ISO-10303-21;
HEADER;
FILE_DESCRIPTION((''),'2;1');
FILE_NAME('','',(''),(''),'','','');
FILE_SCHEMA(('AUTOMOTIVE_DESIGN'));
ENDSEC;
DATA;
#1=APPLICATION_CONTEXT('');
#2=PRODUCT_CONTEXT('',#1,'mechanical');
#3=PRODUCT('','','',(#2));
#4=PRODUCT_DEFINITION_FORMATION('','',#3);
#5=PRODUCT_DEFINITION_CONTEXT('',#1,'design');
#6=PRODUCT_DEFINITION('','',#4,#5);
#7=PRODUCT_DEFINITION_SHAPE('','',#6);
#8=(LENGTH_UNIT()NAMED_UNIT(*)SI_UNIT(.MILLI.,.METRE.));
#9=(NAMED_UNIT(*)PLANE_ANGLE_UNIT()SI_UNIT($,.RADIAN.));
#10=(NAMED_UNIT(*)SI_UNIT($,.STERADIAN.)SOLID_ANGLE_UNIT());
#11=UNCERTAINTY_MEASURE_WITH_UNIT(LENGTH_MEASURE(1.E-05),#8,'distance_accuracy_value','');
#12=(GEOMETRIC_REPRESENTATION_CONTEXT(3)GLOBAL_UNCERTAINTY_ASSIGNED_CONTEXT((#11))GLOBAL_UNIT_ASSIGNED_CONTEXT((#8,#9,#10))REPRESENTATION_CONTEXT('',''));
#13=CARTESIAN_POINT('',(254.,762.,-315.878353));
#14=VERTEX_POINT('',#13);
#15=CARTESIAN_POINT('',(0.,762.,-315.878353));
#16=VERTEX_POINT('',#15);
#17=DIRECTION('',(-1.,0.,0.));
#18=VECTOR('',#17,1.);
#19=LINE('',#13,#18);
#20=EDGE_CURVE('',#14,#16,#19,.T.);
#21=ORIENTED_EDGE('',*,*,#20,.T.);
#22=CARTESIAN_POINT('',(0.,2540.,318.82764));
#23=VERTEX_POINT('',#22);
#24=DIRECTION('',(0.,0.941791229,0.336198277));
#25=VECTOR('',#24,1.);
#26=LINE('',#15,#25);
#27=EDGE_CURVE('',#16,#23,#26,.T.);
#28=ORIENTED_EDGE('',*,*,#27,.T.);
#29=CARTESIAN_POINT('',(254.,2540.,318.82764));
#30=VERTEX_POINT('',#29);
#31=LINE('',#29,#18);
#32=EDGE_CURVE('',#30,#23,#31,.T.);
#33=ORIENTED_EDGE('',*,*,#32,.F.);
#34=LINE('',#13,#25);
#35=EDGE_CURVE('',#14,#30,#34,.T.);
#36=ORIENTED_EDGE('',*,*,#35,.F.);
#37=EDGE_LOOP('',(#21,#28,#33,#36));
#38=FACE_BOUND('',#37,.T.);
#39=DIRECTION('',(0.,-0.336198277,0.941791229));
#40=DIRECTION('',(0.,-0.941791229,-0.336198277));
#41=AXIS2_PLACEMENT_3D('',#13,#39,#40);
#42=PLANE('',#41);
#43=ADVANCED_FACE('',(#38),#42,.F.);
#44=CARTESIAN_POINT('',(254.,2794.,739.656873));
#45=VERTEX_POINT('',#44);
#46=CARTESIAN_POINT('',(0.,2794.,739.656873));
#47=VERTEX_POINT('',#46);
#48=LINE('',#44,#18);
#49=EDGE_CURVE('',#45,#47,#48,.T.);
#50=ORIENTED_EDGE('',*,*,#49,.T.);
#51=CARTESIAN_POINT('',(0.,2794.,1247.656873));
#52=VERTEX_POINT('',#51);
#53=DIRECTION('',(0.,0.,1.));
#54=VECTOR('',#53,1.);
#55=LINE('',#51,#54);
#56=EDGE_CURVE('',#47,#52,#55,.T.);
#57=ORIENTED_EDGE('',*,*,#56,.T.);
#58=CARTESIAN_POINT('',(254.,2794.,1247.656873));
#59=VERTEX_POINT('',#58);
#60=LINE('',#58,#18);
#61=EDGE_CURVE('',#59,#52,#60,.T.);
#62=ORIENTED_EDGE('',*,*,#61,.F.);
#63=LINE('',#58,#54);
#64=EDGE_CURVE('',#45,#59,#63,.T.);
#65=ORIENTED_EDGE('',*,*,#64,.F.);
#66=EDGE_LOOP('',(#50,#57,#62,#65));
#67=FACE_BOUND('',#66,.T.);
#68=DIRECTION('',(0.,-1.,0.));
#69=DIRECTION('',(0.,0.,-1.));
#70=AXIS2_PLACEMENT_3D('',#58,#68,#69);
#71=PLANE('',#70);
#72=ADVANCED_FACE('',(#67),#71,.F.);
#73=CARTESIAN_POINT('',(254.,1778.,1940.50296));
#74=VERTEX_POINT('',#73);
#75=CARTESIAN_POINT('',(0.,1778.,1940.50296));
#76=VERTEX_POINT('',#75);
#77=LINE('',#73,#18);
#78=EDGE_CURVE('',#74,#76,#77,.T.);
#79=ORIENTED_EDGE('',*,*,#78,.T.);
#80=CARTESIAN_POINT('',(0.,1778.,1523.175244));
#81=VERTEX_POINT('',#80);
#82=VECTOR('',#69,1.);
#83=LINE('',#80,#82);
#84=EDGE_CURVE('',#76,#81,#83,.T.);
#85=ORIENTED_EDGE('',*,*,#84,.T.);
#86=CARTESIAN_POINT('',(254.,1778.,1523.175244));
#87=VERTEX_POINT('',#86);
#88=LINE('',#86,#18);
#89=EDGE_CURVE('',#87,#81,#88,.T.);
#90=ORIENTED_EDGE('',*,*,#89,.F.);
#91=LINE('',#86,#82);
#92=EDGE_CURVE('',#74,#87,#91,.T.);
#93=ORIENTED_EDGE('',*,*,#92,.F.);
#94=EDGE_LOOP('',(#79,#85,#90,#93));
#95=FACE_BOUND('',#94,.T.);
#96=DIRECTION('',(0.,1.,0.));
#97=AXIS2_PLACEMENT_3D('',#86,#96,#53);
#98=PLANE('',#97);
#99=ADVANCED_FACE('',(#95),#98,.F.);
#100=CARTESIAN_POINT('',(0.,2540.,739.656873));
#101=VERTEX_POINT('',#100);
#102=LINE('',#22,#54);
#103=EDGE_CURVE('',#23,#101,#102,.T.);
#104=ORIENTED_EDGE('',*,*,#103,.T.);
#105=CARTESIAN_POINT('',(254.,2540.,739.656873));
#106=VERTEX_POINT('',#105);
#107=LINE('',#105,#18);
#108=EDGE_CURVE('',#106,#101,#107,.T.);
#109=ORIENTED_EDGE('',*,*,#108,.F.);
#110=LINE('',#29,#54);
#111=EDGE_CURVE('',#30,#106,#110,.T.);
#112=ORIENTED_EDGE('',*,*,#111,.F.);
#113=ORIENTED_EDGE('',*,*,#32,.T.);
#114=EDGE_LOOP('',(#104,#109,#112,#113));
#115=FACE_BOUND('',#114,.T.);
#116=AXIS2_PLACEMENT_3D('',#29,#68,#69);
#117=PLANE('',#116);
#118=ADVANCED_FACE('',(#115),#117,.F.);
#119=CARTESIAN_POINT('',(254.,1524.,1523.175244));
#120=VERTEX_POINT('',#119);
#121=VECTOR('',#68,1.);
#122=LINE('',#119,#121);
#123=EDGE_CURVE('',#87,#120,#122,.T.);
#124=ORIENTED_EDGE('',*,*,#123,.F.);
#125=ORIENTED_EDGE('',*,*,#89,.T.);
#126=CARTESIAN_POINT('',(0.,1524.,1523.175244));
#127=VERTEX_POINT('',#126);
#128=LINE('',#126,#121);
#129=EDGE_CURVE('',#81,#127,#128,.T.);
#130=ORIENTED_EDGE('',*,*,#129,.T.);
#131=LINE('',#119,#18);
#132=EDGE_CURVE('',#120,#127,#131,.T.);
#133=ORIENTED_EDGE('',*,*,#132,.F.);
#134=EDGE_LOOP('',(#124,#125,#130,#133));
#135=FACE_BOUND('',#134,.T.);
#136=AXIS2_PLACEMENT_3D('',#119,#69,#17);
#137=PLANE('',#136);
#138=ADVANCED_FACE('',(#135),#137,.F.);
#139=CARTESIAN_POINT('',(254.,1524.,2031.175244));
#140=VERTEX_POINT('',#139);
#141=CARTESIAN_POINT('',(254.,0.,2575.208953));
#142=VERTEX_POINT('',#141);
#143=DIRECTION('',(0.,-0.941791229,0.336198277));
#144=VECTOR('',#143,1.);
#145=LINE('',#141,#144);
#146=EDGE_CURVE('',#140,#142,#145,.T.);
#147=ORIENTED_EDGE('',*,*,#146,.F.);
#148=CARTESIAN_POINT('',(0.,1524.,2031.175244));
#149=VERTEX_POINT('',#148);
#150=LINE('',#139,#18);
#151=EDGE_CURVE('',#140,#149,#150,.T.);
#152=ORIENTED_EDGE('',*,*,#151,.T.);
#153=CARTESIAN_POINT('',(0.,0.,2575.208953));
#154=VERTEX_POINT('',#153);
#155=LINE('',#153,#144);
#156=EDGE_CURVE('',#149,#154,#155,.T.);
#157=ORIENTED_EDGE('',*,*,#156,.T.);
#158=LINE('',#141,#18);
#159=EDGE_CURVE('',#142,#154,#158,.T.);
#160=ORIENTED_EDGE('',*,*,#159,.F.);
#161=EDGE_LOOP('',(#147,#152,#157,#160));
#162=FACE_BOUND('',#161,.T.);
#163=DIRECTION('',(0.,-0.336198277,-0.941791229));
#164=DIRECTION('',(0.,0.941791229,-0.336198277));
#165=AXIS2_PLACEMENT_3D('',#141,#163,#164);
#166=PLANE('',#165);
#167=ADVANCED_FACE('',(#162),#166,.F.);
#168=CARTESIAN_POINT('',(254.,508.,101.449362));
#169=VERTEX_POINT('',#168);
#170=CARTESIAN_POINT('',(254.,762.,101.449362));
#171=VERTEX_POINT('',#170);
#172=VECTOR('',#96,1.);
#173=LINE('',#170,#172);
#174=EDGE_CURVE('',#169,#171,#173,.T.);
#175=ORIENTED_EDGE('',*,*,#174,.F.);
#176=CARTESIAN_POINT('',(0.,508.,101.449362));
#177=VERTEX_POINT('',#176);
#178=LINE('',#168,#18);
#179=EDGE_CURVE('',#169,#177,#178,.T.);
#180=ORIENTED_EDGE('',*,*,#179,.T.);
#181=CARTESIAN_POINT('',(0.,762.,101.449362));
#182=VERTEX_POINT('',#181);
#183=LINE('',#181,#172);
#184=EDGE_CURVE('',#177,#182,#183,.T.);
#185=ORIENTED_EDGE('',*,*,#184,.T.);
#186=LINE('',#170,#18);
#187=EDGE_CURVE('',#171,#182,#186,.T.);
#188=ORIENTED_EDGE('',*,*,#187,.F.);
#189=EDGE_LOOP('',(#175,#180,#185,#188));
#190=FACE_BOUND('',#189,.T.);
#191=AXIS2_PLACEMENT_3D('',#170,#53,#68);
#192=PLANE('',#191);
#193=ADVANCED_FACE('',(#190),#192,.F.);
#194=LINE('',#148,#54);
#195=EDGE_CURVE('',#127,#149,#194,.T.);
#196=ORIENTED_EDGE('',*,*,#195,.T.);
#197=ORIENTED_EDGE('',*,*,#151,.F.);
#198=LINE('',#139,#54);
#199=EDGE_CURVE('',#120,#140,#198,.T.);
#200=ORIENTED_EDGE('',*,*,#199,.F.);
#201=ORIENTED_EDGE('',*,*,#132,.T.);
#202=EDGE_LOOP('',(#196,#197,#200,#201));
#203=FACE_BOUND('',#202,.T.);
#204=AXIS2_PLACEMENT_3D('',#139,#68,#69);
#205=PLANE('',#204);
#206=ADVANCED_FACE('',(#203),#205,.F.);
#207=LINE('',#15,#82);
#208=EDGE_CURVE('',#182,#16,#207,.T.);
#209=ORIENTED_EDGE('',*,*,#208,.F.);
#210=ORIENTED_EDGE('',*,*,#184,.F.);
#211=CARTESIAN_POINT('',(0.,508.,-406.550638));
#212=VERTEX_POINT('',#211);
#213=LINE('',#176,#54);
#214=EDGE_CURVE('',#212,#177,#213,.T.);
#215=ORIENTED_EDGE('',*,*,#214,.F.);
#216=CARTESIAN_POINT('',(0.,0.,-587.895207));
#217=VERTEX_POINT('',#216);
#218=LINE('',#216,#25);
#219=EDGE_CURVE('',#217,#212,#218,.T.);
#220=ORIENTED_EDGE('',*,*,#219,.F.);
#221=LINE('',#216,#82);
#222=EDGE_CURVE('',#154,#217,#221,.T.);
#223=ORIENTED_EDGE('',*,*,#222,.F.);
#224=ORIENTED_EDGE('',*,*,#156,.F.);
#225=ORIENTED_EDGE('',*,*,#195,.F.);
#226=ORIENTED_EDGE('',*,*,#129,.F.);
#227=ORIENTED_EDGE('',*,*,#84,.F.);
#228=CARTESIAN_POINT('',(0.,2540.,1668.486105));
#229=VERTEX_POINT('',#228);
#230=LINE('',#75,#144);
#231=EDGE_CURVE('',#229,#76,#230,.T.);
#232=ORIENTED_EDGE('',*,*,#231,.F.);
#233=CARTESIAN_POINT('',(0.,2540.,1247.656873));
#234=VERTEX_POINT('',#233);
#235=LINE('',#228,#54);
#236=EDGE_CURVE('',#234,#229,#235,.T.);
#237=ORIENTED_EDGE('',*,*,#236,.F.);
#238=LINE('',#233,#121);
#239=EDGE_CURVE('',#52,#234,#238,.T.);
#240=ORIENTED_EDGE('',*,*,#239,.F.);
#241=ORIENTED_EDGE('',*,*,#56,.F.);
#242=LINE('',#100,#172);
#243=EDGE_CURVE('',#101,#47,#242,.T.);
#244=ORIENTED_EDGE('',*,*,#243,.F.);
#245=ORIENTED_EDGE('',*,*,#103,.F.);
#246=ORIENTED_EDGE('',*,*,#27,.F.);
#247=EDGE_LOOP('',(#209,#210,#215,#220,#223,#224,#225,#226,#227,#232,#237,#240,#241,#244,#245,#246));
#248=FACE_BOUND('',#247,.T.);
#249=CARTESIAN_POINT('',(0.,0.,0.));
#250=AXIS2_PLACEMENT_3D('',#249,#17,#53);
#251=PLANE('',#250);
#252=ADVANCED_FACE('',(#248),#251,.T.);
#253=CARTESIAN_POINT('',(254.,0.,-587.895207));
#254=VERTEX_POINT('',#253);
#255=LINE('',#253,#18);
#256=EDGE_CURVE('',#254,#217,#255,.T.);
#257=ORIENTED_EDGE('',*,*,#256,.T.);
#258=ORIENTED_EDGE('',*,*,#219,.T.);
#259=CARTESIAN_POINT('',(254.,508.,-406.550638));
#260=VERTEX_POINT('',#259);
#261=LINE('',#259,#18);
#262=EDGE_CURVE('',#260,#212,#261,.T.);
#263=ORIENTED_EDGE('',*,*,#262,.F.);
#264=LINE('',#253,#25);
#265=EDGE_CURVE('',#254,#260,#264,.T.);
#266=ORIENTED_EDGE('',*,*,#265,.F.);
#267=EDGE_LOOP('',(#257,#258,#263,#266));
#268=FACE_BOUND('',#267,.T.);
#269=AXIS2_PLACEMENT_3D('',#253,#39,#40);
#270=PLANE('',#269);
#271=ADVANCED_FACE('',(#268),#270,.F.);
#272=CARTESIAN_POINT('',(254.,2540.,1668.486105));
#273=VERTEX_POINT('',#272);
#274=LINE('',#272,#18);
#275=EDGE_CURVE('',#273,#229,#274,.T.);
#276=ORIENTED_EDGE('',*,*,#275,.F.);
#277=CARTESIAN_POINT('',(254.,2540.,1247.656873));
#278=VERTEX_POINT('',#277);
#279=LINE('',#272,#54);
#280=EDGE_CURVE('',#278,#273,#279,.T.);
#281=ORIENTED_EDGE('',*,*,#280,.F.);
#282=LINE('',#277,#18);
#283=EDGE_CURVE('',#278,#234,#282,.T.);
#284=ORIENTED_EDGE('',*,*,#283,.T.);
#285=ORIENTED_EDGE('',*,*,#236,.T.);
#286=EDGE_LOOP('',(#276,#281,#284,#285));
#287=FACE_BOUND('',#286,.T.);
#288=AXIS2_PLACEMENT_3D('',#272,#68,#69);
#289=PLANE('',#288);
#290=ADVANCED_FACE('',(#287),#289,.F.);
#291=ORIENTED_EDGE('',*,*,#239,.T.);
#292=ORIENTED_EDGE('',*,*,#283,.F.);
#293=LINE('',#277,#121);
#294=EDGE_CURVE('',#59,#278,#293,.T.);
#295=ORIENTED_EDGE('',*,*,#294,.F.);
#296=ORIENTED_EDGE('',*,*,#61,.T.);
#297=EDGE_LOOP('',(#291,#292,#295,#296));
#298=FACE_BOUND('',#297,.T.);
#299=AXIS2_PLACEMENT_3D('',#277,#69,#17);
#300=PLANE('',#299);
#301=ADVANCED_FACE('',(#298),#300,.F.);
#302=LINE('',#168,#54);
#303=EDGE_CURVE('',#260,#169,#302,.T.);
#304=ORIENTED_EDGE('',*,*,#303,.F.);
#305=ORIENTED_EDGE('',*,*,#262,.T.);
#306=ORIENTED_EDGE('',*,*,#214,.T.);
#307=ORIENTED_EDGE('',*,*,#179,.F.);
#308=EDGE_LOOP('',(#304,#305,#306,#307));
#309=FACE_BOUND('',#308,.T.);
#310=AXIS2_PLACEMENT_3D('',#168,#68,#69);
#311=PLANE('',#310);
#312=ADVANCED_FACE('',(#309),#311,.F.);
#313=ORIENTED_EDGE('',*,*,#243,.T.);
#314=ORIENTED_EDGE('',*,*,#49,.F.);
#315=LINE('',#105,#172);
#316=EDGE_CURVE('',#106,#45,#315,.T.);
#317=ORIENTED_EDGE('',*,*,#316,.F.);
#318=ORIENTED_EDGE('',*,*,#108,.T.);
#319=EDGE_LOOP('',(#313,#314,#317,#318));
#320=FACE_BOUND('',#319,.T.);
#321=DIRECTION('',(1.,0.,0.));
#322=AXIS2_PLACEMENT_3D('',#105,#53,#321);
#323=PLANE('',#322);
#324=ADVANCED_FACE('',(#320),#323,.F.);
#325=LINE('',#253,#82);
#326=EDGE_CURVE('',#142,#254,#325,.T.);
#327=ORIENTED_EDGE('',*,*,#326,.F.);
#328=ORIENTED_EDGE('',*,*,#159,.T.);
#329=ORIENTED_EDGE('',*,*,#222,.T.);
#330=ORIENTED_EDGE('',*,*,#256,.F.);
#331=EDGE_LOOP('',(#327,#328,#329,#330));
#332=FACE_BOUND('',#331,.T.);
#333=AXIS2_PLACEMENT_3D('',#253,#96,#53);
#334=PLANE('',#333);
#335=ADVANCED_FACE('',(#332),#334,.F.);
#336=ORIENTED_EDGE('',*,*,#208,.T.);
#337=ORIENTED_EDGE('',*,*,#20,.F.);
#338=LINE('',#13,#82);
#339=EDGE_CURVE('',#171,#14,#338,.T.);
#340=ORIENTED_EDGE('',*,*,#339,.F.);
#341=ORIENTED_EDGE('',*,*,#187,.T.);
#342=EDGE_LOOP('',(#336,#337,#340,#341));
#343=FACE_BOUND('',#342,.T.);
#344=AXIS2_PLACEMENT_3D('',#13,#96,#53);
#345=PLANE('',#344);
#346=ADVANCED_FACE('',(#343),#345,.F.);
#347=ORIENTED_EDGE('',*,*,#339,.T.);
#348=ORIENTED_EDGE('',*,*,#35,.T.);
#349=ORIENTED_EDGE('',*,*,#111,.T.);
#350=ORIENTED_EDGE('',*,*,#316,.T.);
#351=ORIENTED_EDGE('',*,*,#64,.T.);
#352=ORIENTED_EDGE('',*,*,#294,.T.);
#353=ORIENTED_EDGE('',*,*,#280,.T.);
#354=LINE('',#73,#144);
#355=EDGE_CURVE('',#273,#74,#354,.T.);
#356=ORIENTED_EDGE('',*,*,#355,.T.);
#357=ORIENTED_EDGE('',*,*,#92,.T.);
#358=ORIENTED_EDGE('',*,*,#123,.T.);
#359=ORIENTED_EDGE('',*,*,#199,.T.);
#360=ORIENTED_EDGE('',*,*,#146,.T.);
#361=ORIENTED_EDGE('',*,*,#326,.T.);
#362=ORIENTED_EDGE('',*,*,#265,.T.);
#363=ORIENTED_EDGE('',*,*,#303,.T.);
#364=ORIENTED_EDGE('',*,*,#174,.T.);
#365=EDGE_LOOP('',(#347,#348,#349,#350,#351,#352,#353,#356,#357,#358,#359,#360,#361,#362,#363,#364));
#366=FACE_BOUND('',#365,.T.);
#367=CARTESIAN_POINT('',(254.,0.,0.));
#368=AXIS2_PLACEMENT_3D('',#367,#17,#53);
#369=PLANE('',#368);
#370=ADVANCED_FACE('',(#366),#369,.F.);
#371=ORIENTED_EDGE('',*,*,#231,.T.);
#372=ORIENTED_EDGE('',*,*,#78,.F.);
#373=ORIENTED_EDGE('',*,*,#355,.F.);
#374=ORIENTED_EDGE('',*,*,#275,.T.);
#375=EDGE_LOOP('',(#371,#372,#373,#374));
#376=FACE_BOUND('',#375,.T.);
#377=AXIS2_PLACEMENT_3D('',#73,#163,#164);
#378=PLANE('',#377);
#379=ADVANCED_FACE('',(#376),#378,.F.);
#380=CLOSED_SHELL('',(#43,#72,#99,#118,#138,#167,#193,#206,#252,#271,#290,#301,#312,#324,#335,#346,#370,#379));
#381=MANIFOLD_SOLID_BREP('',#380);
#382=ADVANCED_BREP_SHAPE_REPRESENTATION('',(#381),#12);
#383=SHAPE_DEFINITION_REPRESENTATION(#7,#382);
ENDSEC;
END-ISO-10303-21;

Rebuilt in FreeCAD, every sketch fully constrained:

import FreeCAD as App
import Part
import Sketcher

V = App.Vector
Q = App.Units.Quantity

doc = App.newDocument("Part")
params = doc.addObject("Spreadsheet::Sheet", "Params")
for row, (alias, value) in enumerate([
    ("sketch1_width", "10 in"),
    ("sketch1_height", "20 in"),
    ("pad1_length", "10 in"),
], start=1):
    params.set(f"A{row}", alias)
    params.set(f"B{row}", "=" + value)
    params.setAlias(f"B{row}", alias)

body = doc.addObject("PartDesign::Body", "Body")

sketch1 = body.newObject("Sketcher::SketchObject", "Sketch")
sketch1.AttachmentSupport = (doc.getObject("YZ_Plane"), [""])
sketch1.MapMode = "FlatFace"
sketch1.addGeometry(Part.LineSegment(V(0, 2575, 0), V(0, -588, 0)), False)
sketch1.addGeometry(Part.LineSegment(V(0, -588, 0), V(508, -407, 0)), False)
sketch1.addGeometry(Part.LineSegment(V(508, -407, 0), V(508, 101, 0)), False)
sketch1.addGeometry(Part.LineSegment(V(508, 101, 0), V(762, 101, 0)), False)
sketch1.addGeometry(Part.LineSegment(V(762, 101, 0), V(762, -316, 0)), False)
sketch1.addGeometry(Part.LineSegment(V(762, -316, 0), V(2540, 319, 0)), False)
sketch1.addGeometry(Part.LineSegment(V(2540, 319, 0), V(2540, 740, 0)), False)
sketch1.addGeometry(Part.LineSegment(V(2540, 740, 0), V(2794, 740, 0)), False)
sketch1.addGeometry(Part.LineSegment(V(2794, 740, 0), V(2794, 1248, 0)), False)
sketch1.addGeometry(Part.LineSegment(V(2794, 1248, 0), V(2540, 1248, 0)), False)
sketch1.addGeometry(Part.LineSegment(V(2540, 1248, 0), V(2540, 1668, 0)), False)
sketch1.addGeometry(Part.LineSegment(V(2540, 1668, 0), V(1778, 1941, 0)), False)
sketch1.addGeometry(Part.LineSegment(V(1778, 1941, 0), V(1778, 1523, 0)), False)
sketch1.addGeometry(Part.LineSegment(V(1778, 1523, 0), V(1524, 1523, 0)), False)
sketch1.addGeometry(Part.LineSegment(V(1524, 1523, 0), V(1524, 2031, 0)), False)
sketch1.addGeometry(Part.LineSegment(V(1524, 2031, 0), V(0, 2575, 0)), False)
sketch1.addConstraint(Sketcher.Constraint("Coincident", 0, 2, 1, 1))
sketch1.addConstraint(Sketcher.Constraint("Coincident", 1, 2, 2, 1))
sketch1.addConstraint(Sketcher.Constraint("Coincident", 2, 2, 3, 1))
sketch1.addConstraint(Sketcher.Constraint("Coincident", 3, 2, 4, 1))
sketch1.addConstraint(Sketcher.Constraint("Coincident", 4, 2, 5, 1))
sketch1.addConstraint(Sketcher.Constraint("Coincident", 5, 2, 6, 1))
sketch1.addConstraint(Sketcher.Constraint("Coincident", 6, 2, 7, 1))
sketch1.addConstraint(Sketcher.Constraint("Coincident", 7, 2, 8, 1))
sketch1.addConstraint(Sketcher.Constraint("Coincident", 8, 2, 9, 1))
sketch1.addConstraint(Sketcher.Constraint("Coincident", 9, 2, 10, 1))
sketch1.addConstraint(Sketcher.Constraint("Coincident", 10, 2, 11, 1))
sketch1.addConstraint(Sketcher.Constraint("Coincident", 11, 2, 12, 1))
sketch1.addConstraint(Sketcher.Constraint("Coincident", 12, 2, 13, 1))
sketch1.addConstraint(Sketcher.Constraint("Coincident", 13, 2, 14, 1))
sketch1.addConstraint(Sketcher.Constraint("Coincident", 14, 2, 15, 1))
sketch1.addConstraint(Sketcher.Constraint("Coincident", 15, 2, 0, 1))
sketch1.addConstraint(Sketcher.Constraint("Vertical", 0))
sketch1.addConstraint(Sketcher.Constraint("Vertical", 2))
sketch1.addConstraint(Sketcher.Constraint("Horizontal", 3))
sketch1.addConstraint(Sketcher.Constraint("Vertical", 4))
sketch1.addConstraint(Sketcher.Constraint("Vertical", 6))
sketch1.addConstraint(Sketcher.Constraint("Horizontal", 7))
sketch1.addConstraint(Sketcher.Constraint("Vertical", 8))
sketch1.addConstraint(Sketcher.Constraint("Horizontal", 9))
sketch1.addConstraint(Sketcher.Constraint("Vertical", 10))
sketch1.addConstraint(Sketcher.Constraint("Vertical", 12))
sketch1.addConstraint(Sketcher.Constraint("Horizontal", 13))
sketch1.addConstraint(Sketcher.Constraint("Vertical", 14))
sketch1.addConstraint(Sketcher.Constraint("PointOnObject", 0, 2, -2))
sketch1.addConstraint(Sketcher.Constraint("Parallel", 1, 5))
sketch1.addConstraint(Sketcher.Constraint("Parallel", 11, 15))
sketch1.addConstraint(Sketcher.Constraint("Vertical", 6, 2, 9, 2))
sketch1.addConstraint(Sketcher.Constraint("Equal", 3, 7))
sketch1.addConstraint(Sketcher.Constraint("Equal", 9, 13))
sketch1.addConstraint(Sketcher.Constraint("Equal", 2, 8))
sketch1.addConstraint(Sketcher.Constraint("Equal", 6, 10))
sketch1.addConstraint(Sketcher.Constraint("Equal", 4, 12))
sketch1.addConstraint(Sketcher.Constraint("Equal", 8, 14))
sketch1.addConstraint(Sketcher.Constraint("DistanceX", 3, 1, 3, 2, Q("10 in")))
sketch1.addConstraint(Sketcher.Constraint("DistanceY", 2, 1, 2, 2, Q("20 in")))
sketch1.addConstraint(Sketcher.Constraint("DistanceX", -1, 1, 1, 2, Q("20 in")))
sketch1.addConstraint(Sketcher.Constraint("DistanceX", -1, 1, 5, 2, Q("100 in")))
sketch1.addConstraint(Sketcher.Constraint("DistanceX", -1, 1, 11, 2, Q("70 in")))
sketch1.addConstraint(Sketcher.Constraint("DistanceY", 3, 2, 5, 2, Q("8.5581999 in")))
sketch1.addConstraint(Sketcher.Constraint("DistanceY", 12, 2, 10, 2, Q("5.7209 in")))
sketch1.addConstraint(Sketcher.Constraint("DistanceY", 0, 2, 0, 1, Q("3163.10416 mm")))
sketch1.addConstraint(Sketcher.Constraint("DistanceY", 4, 2, 4, 1, Q("417.327715 mm")))
sketch1.addConstraint(Sketcher.Constraint("DistanceY", -1, 1, 5, 2, Q("318.82764 mm")))
sketch1.setExpression("Constraints[38]", "Params.sketch1_width")
sketch1.setExpression("Constraints[39]", "Params.sketch1_height")
pad1 = body.newObject("PartDesign::Pad", "Pad")
pad1.Profile = sketch1
pad1.setExpression("Length", "Params.pad1_length")

doc.recompute()
